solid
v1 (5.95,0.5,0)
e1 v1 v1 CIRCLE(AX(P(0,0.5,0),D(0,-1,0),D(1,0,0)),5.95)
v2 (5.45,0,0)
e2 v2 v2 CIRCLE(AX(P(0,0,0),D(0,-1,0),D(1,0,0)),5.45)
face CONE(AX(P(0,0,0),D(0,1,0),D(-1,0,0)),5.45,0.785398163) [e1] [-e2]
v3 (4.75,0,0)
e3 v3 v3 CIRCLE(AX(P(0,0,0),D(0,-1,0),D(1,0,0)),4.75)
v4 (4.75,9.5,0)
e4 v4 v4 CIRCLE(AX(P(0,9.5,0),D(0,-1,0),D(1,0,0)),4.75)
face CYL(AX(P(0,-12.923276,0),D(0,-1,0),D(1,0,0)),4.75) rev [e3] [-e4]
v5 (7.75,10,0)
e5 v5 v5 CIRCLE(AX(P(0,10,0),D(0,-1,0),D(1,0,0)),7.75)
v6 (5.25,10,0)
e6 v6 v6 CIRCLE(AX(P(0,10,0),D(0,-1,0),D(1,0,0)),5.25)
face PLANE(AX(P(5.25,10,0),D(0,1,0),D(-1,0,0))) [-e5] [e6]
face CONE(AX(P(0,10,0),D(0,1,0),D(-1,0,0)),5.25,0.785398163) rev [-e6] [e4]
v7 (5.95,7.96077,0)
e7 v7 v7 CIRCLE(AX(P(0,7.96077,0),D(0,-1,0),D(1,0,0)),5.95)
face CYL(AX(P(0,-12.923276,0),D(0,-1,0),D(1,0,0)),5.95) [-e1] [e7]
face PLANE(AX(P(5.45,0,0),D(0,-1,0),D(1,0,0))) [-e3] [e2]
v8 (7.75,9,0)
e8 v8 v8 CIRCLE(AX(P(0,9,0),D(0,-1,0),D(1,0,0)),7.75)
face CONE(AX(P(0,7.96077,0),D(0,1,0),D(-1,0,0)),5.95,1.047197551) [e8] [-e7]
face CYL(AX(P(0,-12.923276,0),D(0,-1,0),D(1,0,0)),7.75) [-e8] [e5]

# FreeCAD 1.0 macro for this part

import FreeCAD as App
import Part
import Sketcher
from FreeCAD import Vector
Q = App.Units.Quantity

doc = App.newDocument("Part")
body = doc.addObject("PartDesign::Body", "Body")

# Sketch on XY plane
sketch1 = body.newObject("Sketcher::SketchObject", "Sketch")
sketch1.AttachmentSupport = (doc.getObject("XY_Plane"), [""])
sketch1.MapMode = "FlatFace"
sketch1.addGeometry([
    Part.LineSegment(Vector(4.8, 9.5, 0), Vector(4.8, 0, 0)),  # 0
    Part.LineSegment(Vector(4.8, 0, 0), Vector(5.5, 0, 0)),  # 1
    Part.LineSegment(Vector(5.5, 0, 0), Vector(6, 0.5, 0)),  # 2
    Part.LineSegment(Vector(6, 0.5, 0), Vector(6, 8, 0)),  # 3
    Part.LineSegment(Vector(6, 8, 0), Vector(7.8, 9, 0)),  # 4
    Part.LineSegment(Vector(7.8, 9, 0), Vector(7.8, 10, 0)),  # 5
    Part.LineSegment(Vector(7.8, 10, 0), Vector(5.2, 10, 0)),  # 6
    Part.LineSegment(Vector(5.2, 10, 0), Vector(4.8, 9.5, 0)),  # 7
], False)
sketch1.addConstraint([
    Sketcher.Constraint("Coincident", 0, 2, 1, 1),
    Sketcher.Constraint("Coincident", 1, 2, 2, 1),
    Sketcher.Constraint("Coincident", 2, 2, 3, 1),
    Sketcher.Constraint("Coincident", 3, 2, 4, 1),
    Sketcher.Constraint("Coincident", 4, 2, 5, 1),
    Sketcher.Constraint("Coincident", 5, 2, 6, 1),
    Sketcher.Constraint("Coincident", 6, 2, 7, 1),
    Sketcher.Constraint("Coincident", 7, 2, 0, 1),
    Sketcher.Constraint("Vertical", 0),
    Sketcher.Constraint("Horizontal", 1),
    Sketcher.Constraint("Vertical", 3),
    Sketcher.Constraint("Vertical", 5),
    Sketcher.Constraint("Horizontal", 6),
    Sketcher.Constraint("PointOnObject", 0, 2, -1),
    Sketcher.Constraint("Parallel", 2, 7),
    Sketcher.Constraint("Equal", 2, 7),
    Sketcher.Constraint("DistanceY", 5, 1, 5, 2, Q("1 mm")),
    Sketcher.Constraint("Angle", 2, Q("45 deg")),
    Sketcher.Constraint("Angle", 4, Q("30 deg")),
    Sketcher.Constraint("DistanceX", 1, 1, 1, 2, Q("0.7 mm")),
    Sketcher.Constraint("DistanceX", 6, 2, 6, 1, Q("2.5 mm")),
    Sketcher.Constraint("DistanceY", 0, 2, 0, 1, Q("9.5 mm")),
    Sketcher.Constraint("DistanceY", -1, 1, 4, 2, Q("9 mm")),
    Sketcher.Constraint("DistanceX", -1, 1, 0, 2, Q("4.75 mm")),
])
revolution = body.newObject("PartDesign::Revolution", "Revolution")
revolution.Profile = sketch1
revolution.ReferenceAxis = (sketch1, ["V_Axis"])
revolution.Angle = 360

doc.recompute()
